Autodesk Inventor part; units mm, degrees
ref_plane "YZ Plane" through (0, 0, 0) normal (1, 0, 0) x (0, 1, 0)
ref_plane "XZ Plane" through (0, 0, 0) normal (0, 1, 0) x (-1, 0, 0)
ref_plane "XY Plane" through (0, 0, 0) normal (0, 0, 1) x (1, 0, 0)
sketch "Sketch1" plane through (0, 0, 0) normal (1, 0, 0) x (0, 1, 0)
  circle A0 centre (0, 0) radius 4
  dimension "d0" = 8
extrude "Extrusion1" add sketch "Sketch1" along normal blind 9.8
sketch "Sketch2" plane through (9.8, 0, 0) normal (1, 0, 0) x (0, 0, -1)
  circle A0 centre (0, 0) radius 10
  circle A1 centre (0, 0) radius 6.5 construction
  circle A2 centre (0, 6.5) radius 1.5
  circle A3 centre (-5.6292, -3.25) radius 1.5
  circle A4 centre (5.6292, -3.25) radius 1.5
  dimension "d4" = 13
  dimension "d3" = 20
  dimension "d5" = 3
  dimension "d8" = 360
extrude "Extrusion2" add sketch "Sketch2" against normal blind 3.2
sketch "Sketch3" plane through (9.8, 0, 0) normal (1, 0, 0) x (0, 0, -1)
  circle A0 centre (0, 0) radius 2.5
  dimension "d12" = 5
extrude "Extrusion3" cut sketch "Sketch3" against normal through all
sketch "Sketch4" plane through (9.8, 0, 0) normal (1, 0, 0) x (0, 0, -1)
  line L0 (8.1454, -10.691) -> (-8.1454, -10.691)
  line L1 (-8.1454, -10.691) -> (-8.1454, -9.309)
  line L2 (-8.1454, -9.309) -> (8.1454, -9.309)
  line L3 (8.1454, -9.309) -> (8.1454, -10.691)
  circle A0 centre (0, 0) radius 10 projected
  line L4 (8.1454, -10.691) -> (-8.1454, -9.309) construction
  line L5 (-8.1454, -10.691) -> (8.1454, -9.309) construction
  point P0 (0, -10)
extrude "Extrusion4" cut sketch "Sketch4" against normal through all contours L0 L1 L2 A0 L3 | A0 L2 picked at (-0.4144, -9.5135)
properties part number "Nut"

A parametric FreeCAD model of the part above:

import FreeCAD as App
import Part
import Sketcher
from FreeCAD import Vector


def add_polygon(sketch, points):
    """Adds a closed chain of lines whose ends are joined by coincident constraints."""
    first, n = sketch.GeometryCount, len(points)
    for a, b in zip(points, points[1:] + points[:1]):
        sketch.addGeometry(Part.LineSegment(App.Vector(*a, 0), App.Vector(*b, 0)), False)
    for i in range(n):
        sketch.addConstraint(Sketcher.Constraint("Coincident", first + i, 2, first + (i + 1) % n, 1))

doc = App.newDocument("Part")
body = doc.addObject("PartDesign::Body", "Body")

sketch1 = body.newObject("Sketcher::SketchObject", "Sketch")
sketch1.AttachmentSupport = (doc.getObject("YZ_Plane"), [""])
sketch1.MapMode = "FlatFace"
sketch1.addGeometry(Part.Circle(Vector(0, 0, 0), Vector(0, 0, 1), 4), False)
sketch1.addConstraint([
    Sketcher.Constraint("Coincident", 0, 3, -1, 1),
    Sketcher.Constraint("Diameter", 0, 8.0),
])
pad1 = body.newObject("PartDesign::Pad", "Pad")
pad1.Profile = sketch1
pad1.Length = 9.8

sketch2 = body.newObject("Sketcher::SketchObject", "Sketch001")
sketch2.AttachmentSupport = (doc.getObject("YZ_Plane"), [""])
sketch2.MapMode = "FlatFace"
sketch2.AttachmentOffset = App.Placement(Vector(0, 0, 9.8), App.Rotation())
sketch2.addGeometry([
    Part.Circle(Vector(0, 0, 0), Vector(0, 0, 1), 10),
    Part.Circle(Vector(-3.25, 5.6292, 0), Vector(0, 0, 1), 1.5),
    Part.Circle(Vector(-3.25, -5.6292, 0), Vector(0, 0, 1), 1.5),
    Part.Circle(Vector(6.5, 0, 0), Vector(0, 0, 1), 1.5),
], False)
sketch2.addConstraint([
    Sketcher.Constraint("Coincident", 0, 3, -1, 1),
    Sketcher.Constraint("Equal", 1, 2),
    Sketcher.Constraint("Equal", 2, 3),
    Sketcher.Constraint("Symmetric", 1, 3, 2, 3, -1),
    Sketcher.Constraint("PointOnObject", 3, 3, -1),
    Sketcher.Constraint("Diameter", 0, 20.0),
    Sketcher.Constraint("Diameter", 1, 3.0),
    Sketcher.Constraint("DistanceX", -1, 1, 3, 3, 6.5),
    Sketcher.Constraint("DistanceX", 1, 3, -1, 1, 3.25),
    Sketcher.Constraint("DistanceY", -1, 1, 1, 3, 5.6292),
])
pad2 = body.newObject("PartDesign::Pad", "Pad001")
pad2.Profile = sketch2
pad2.Length = 3.2
pad2.Reversed = True

sketch3 = body.newObject("Sketcher::SketchObject", "Sketch002")
sketch3.AttachmentSupport = (doc.getObject("YZ_Plane"), [""])
sketch3.MapMode = "FlatFace"
sketch3.AttachmentOffset = App.Placement(Vector(0, 0, 9.8), App.Rotation())
sketch3.addGeometry(Part.Circle(Vector(0, 0, 0), Vector(0, 0, 1), 2.5), False)
sketch3.addConstraint([
    Sketcher.Constraint("Coincident", 0, 3, -1, 1),
    Sketcher.Constraint("Diameter", 0, 5.0),
])
pocket1 = body.newObject("PartDesign::Pocket", "Pocket")
pocket1.Profile = sketch3
pocket1.Type = "ThroughAll"

sketch4 = body.newObject("Sketcher::SketchObject", "Sketch003")
sketch4.AttachmentSupport = (doc.getObject("YZ_Plane"), [""])
sketch4.MapMode = "FlatFace"
sketch4.AttachmentOffset = App.Placement(Vector(0, 0, 9.8), App.Rotation())
add_polygon(sketch4, [(-10.691, 8.1454), (-10.691, -8.1454), (-9.309, -8.1454), (-9.309, 8.1454)])
sketch4.addConstraint([
    Sketcher.Constraint("Vertical", 0),
    Sketcher.Constraint("Horizontal", 1),
    Sketcher.Constraint("Vertical", 2),
    Sketcher.Constraint("Horizontal", 3),
    Sketcher.Constraint("DistanceX", 1, 1, 1, 2, 1.382),
    Sketcher.Constraint("DistanceY", 0, 2, 0, 1, 16.2908),
    Sketcher.Constraint("DistanceX", 0, 2, -1, 1, 10.691),
    Sketcher.Constraint("DistanceY", 0, 2, -1, 1, 8.1454),
])
pocket2 = body.newObject("PartDesign::Pocket", "Pocket001")
pocket2.Profile = sketch4
pocket2.Type = "ThroughAll"

doc.recompute()
